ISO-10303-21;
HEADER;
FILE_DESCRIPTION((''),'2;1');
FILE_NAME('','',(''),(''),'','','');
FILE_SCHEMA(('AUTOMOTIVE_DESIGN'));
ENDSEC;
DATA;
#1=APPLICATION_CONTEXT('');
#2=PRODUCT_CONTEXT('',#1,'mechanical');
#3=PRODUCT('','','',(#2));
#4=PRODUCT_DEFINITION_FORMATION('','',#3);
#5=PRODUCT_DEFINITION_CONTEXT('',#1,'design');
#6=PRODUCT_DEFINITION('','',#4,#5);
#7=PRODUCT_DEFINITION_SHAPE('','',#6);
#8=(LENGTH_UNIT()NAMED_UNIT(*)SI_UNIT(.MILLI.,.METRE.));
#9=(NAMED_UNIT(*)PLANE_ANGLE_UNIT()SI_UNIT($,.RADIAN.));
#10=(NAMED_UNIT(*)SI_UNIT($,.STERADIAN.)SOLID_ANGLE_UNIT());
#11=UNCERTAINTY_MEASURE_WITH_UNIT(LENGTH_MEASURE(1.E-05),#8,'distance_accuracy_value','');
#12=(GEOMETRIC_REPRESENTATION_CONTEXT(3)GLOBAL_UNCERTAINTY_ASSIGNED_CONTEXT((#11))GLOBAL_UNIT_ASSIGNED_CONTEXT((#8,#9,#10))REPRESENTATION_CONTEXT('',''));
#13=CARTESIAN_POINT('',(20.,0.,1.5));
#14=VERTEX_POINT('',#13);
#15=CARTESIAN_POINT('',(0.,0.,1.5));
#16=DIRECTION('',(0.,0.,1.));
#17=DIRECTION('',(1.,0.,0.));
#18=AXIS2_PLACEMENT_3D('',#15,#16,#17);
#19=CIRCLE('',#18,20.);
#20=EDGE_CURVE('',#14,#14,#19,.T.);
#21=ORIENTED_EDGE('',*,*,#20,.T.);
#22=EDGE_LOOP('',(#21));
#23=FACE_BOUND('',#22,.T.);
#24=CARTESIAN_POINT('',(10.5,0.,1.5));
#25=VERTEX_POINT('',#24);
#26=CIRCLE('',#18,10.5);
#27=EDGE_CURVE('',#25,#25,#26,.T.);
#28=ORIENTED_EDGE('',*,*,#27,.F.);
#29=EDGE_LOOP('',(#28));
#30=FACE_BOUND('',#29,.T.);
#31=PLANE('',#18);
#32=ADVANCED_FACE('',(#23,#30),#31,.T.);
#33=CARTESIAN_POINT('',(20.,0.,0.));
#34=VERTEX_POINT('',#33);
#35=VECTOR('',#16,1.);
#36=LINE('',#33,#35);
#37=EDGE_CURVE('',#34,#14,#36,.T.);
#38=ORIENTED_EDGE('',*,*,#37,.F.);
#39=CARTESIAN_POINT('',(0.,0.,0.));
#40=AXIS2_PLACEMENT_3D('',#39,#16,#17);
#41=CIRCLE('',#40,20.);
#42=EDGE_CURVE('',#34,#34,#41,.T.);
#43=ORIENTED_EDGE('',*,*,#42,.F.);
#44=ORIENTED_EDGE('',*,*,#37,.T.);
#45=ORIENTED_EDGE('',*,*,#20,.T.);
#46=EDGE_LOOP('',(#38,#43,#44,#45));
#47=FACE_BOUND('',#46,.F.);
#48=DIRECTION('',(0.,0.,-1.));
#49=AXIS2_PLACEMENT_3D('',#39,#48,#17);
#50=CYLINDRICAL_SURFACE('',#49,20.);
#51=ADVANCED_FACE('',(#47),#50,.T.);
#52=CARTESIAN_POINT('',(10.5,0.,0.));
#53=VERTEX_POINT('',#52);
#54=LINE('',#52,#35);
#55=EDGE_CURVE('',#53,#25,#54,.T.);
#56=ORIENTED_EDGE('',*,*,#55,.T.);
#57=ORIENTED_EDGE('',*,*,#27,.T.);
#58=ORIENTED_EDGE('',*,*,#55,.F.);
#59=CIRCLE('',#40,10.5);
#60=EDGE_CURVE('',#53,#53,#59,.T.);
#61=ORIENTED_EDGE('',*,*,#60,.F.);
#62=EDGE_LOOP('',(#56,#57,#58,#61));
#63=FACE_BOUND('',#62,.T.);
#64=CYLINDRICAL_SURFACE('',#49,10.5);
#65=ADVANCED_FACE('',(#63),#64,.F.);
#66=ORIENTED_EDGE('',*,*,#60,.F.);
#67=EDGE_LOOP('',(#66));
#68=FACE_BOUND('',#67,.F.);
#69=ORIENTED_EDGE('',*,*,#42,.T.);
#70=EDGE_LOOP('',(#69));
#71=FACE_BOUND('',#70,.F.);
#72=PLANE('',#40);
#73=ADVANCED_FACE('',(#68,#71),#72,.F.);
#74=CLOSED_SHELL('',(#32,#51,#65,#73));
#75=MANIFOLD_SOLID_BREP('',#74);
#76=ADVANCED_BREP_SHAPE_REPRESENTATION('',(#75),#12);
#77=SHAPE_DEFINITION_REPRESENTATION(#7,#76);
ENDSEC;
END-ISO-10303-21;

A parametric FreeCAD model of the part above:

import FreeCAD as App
import Part
import Sketcher

V = App.Vector

doc = App.newDocument("Part")
body = doc.addObject("PartDesign::Body", "Body")

sketch1 = doc.addObject("Sketcher::SketchObject", "Sketch")
body.addObject(sketch1)
sketch1.AttachmentSupport = (doc.XY_Plane, [""])
sketch1.MapMode = "FlatFace"
sketch1.addGeometry(Part.Circle(V(0, 0, 0), V(0, 0, 1), 20), False)
sketch1.addGeometry(Part.Circle(V(0, 0, 0), V(0, 0, 1), 10), False)
sketch1.addConstraint(Sketcher.Constraint("Coincident", 0, 3, -1, 1))
sketch1.addConstraint(Sketcher.Constraint("Coincident", 1, 3, -1, 1))
sketch1.addConstraint(Sketcher.Constraint("Diameter", 0, 40.0))
sketch1.addConstraint(Sketcher.Constraint("Diameter", 1, 21.0))
pad1 = doc.addObject("PartDesign::Pad", "Pad")
body.addObject(pad1)
pad1.Profile = sketch1
pad1.Length = 1.5

doc.recompute()
